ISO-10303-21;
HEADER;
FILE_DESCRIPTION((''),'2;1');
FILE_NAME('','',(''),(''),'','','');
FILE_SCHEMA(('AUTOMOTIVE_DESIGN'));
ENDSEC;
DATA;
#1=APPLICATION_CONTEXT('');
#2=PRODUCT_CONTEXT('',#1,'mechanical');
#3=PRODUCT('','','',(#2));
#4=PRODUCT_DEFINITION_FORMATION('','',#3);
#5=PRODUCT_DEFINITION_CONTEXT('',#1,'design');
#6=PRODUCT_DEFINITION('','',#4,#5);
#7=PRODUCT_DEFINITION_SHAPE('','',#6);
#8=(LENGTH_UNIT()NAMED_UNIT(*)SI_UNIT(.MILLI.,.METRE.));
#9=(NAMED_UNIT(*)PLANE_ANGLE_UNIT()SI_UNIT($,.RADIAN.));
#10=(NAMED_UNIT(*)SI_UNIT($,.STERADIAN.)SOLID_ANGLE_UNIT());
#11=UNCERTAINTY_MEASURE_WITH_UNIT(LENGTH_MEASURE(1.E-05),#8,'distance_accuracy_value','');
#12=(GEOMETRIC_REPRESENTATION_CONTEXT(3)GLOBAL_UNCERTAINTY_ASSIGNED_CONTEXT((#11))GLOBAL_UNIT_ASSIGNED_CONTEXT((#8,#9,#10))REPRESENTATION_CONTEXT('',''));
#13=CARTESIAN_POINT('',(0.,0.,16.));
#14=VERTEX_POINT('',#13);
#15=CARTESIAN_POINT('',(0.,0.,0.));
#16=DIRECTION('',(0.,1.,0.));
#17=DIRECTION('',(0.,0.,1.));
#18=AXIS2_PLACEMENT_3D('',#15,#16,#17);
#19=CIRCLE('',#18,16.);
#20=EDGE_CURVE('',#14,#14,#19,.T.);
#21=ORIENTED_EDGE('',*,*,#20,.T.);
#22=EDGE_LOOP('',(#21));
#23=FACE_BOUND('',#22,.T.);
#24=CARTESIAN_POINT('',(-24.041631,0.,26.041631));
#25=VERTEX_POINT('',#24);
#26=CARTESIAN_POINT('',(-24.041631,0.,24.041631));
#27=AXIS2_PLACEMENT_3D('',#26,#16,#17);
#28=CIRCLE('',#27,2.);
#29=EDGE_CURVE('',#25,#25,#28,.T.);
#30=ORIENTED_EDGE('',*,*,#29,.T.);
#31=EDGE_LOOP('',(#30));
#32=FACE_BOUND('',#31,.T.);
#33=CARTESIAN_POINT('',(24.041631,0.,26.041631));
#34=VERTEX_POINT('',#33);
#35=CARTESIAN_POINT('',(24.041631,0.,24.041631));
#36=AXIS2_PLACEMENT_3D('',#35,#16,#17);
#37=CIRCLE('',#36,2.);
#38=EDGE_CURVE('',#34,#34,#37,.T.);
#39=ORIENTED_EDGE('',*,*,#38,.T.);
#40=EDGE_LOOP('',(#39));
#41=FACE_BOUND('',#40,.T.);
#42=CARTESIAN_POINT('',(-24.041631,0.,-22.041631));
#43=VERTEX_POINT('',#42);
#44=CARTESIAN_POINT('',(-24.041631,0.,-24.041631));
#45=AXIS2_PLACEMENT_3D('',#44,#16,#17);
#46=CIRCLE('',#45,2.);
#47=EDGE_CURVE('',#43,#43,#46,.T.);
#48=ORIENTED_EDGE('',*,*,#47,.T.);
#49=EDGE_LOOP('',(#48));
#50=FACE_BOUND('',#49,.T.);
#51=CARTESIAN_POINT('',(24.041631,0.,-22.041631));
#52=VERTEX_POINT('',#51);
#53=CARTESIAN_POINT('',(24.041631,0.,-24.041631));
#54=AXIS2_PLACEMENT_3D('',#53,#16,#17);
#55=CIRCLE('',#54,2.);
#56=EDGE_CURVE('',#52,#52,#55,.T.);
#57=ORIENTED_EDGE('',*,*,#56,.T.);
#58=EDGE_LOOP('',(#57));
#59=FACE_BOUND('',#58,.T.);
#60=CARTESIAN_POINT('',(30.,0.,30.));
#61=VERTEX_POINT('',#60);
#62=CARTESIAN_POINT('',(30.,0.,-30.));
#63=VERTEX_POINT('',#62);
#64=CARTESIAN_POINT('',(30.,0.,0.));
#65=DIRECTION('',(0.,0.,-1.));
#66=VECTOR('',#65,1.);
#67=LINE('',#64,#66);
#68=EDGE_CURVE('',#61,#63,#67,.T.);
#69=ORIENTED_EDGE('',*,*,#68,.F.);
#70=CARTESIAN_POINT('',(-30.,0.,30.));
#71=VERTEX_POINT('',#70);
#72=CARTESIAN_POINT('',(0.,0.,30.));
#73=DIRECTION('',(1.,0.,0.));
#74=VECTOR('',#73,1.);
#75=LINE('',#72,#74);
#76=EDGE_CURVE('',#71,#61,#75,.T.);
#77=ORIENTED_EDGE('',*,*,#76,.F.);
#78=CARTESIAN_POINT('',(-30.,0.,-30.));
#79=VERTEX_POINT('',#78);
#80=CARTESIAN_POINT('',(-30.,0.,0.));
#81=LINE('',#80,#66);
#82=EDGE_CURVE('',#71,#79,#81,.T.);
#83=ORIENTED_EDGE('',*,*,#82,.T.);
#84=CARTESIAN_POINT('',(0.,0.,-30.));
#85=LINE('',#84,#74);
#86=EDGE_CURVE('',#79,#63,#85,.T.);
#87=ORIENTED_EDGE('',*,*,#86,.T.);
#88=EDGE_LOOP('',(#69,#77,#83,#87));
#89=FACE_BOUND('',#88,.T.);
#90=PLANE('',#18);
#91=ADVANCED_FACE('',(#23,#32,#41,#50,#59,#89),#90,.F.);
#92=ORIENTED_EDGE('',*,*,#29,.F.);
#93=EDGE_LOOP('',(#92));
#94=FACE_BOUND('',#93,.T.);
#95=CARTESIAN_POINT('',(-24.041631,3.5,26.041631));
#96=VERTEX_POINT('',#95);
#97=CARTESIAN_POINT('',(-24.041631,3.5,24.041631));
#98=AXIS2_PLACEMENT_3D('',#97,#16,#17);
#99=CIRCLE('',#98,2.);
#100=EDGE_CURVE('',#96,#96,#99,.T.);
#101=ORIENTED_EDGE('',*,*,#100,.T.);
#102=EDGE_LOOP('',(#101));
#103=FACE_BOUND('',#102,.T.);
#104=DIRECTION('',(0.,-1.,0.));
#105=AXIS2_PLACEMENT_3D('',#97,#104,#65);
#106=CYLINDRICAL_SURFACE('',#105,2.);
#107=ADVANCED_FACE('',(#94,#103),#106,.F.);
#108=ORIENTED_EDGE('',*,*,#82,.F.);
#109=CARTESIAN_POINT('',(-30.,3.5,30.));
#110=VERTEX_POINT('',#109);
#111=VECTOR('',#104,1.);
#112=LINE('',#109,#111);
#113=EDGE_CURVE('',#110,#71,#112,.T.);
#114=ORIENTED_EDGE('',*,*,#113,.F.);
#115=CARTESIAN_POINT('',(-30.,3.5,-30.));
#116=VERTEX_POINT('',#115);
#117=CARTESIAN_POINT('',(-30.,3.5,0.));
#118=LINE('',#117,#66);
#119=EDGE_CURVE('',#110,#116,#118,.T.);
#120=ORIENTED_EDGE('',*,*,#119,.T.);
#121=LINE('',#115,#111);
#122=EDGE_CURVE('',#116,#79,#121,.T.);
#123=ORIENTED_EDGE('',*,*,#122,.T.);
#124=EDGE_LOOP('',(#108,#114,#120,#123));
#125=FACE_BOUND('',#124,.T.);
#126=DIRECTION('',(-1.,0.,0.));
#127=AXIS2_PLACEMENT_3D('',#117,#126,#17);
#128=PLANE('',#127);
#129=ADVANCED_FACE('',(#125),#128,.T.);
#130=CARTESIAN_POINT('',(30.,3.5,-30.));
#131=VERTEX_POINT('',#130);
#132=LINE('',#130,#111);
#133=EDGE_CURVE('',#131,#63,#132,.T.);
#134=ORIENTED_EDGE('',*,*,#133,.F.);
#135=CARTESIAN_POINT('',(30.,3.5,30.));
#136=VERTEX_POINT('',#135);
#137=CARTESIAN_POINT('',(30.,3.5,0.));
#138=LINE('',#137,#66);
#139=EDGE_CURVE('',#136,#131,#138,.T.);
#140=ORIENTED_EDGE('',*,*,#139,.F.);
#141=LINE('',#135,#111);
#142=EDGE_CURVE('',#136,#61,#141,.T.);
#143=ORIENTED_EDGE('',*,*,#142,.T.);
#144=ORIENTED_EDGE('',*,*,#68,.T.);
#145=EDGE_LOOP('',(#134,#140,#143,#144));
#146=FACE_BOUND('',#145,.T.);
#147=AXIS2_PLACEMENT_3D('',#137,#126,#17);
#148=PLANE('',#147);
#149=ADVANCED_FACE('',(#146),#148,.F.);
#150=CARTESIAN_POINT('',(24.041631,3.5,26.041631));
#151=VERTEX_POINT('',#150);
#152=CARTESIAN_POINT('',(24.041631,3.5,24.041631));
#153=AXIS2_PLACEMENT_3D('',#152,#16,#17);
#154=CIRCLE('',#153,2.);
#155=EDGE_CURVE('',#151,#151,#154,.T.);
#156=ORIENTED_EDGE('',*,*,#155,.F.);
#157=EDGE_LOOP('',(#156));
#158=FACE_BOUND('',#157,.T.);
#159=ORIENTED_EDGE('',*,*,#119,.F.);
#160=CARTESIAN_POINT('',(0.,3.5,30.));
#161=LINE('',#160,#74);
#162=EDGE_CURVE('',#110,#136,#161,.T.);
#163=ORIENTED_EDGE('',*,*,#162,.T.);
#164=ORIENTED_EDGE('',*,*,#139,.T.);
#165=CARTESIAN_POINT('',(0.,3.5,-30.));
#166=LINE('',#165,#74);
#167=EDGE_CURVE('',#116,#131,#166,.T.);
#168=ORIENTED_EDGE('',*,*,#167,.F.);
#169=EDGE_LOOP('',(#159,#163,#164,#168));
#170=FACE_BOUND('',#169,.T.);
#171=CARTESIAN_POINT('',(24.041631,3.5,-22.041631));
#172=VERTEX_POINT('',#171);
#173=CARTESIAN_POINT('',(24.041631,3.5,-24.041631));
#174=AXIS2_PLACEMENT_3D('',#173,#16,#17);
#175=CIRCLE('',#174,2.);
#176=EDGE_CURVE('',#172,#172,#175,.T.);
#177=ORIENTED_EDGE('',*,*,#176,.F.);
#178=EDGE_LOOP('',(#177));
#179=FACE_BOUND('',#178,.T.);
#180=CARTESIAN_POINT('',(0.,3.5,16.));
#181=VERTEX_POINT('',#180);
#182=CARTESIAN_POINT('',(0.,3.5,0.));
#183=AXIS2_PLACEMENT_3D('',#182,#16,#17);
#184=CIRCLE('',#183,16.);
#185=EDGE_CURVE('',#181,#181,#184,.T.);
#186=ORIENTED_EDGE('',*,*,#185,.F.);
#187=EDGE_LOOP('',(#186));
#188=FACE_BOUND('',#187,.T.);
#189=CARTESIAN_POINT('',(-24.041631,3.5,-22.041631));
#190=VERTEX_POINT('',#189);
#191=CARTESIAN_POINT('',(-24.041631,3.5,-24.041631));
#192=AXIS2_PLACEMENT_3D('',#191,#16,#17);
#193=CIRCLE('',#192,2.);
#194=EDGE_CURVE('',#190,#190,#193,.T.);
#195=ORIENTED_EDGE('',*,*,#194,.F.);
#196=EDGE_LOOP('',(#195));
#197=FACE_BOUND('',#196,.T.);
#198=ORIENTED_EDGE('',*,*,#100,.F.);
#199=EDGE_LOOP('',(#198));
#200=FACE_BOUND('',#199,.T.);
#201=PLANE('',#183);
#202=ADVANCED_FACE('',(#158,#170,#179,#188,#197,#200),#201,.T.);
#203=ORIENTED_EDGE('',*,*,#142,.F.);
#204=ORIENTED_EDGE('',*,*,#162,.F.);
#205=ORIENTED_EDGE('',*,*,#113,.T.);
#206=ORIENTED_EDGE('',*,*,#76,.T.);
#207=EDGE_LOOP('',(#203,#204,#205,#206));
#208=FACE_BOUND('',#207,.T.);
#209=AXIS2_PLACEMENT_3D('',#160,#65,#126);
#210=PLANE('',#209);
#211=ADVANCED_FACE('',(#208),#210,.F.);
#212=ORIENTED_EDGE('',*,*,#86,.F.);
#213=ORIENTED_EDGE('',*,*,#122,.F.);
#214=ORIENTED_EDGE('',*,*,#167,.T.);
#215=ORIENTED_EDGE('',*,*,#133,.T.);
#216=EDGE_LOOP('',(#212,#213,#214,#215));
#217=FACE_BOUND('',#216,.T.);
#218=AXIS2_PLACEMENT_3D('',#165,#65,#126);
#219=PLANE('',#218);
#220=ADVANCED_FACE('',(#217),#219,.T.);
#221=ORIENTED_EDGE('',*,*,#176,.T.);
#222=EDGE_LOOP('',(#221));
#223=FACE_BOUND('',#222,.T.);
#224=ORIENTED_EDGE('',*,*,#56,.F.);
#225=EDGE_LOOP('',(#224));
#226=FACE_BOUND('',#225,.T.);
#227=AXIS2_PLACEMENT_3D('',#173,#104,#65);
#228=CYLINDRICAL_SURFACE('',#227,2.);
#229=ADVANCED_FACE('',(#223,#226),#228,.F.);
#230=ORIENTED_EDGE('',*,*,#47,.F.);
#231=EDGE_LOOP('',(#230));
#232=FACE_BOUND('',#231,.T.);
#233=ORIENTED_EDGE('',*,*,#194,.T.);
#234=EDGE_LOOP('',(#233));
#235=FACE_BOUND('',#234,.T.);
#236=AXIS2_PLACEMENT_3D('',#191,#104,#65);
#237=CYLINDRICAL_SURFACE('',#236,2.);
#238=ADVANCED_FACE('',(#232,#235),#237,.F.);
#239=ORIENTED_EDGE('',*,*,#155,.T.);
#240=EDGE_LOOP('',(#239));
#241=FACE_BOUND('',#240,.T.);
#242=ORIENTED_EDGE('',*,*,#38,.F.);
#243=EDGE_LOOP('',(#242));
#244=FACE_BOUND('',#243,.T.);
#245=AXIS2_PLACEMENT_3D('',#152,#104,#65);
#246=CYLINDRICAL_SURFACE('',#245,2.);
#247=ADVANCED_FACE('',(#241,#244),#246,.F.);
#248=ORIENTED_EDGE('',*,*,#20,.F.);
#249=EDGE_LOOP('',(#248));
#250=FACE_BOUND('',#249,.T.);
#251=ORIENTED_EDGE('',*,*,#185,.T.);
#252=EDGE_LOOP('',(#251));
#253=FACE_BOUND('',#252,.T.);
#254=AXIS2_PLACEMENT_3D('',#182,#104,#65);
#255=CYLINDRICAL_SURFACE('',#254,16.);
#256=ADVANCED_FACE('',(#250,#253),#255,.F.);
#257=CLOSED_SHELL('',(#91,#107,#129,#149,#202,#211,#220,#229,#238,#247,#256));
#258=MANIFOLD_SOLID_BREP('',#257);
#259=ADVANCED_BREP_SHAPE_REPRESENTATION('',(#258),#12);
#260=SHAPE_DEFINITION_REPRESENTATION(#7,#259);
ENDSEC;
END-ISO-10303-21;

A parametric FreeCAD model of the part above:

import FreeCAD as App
import Part
import Sketcher
from FreeCAD import Vector

doc = App.newDocument("Part")
body = doc.addObject("PartDesign::Body", "Body")

# Sketch on XZ plane
sketch1 = body.newObject("Sketcher::SketchObject", "Sketch")
sketch1.AttachmentSupport = (doc.getObject("XZ_Plane"), [""])
sketch1.MapMode = "FlatFace"
sketch1.addGeometry(Part.LineSegment(Vector(-30, -30, 0), Vector(-30, 30, 0)), False)
sketch1.addGeometry(Part.LineSegment(Vector(-30, 30, 0), Vector(30, 30, 0)), False)
sketch1.addGeometry(Part.LineSegment(Vector(30, 30, 0), Vector(30, -30, 0)), False)
sketch1.addGeometry(Part.LineSegment(Vector(30, -30, 0), Vector(-30, -30, 0)), False)
sketch1.addGeometry(Part.Circle(Vector(-24, 24, 0), Vector(0, 0, 1), 2), False)
sketch1.addGeometry(Part.Circle(Vector(24, 24, 0), Vector(0, 0, 1), 2), False)
sketch1.addGeometry(Part.Circle(Vector(-24, -24, 0), Vector(0, 0, 1), 2), False)
sketch1.addGeometry(Part.Circle(Vector(0, 0, 0), Vector(0, 0, 1), 16), False)
sketch1.addGeometry(Part.Circle(Vector(24, -24, 0), Vector(0, 0, 1), 2), False)
sketch1.addConstraint(Sketcher.Constraint("Coincident", 0, 2, 1, 1))
sketch1.addConstraint(Sketcher.Constraint("Coincident", 1, 2, 2, 1))
sketch1.addConstraint(Sketcher.Constraint("Coincident", 2, 2, 3, 1))
sketch1.addConstraint(Sketcher.Constraint("Coincident", 3, 2, 0, 1))
sketch1.addConstraint(Sketcher.Constraint("Vertical", 0))
sketch1.addConstraint(Sketcher.Constraint("Horizontal", 1))
sketch1.addConstraint(Sketcher.Constraint("Vertical", 2))
sketch1.addConstraint(Sketcher.Constraint("Horizontal", 3))
sketch1.addConstraint(Sketcher.Constraint("Coincident", 7, 3, -1, 1))
sketch1.addConstraint(Sketcher.Constraint("Equal", 4, 5))
sketch1.addConstraint(Sketcher.Constraint("Equal", 5, 6))
sketch1.addConstraint(Sketcher.Constraint("Equal", 6, 8))
sketch1.addConstraint(Sketcher.Constraint("Symmetric", 5, 3, 6, 3, -1, 1))
sketch1.addConstraint(Sketcher.Constraint("Symmetric", 4, 3, 8, 3, -1, 1))
sketch1.addConstraint(Sketcher.Constraint("Symmetric", 0, 2, 2, 2, -1, 1))
sketch1.addConstraint(Sketcher.Constraint("Symmetric", 4, 3, 5, 3, -2))
sketch1.addConstraint(Sketcher.Constraint("Equal", 3, 0))
sketch1.addConstraint(Sketcher.Constraint("Diameter", 4, 4.0))
sketch1.addConstraint(Sketcher.Constraint("Diameter", 7, 32.0))
sketch1.addConstraint(Sketcher.Constraint("DistanceX", 1, 1, 1, 2, 60.0))
sketch1.addConstraint(Sketcher.Constraint("DistanceX", 4, 3, -1, 1, 24.041631))
sketch1.addConstraint(Sketcher.Constraint("DistanceY", -1, 1, 4, 3, 24.041631))
pad1 = body.newObject("PartDesign::Pad", "Pad")
pad1.Profile = sketch1
pad1.Length = 3.5
pad1.Reversed = True

doc.recompute()
